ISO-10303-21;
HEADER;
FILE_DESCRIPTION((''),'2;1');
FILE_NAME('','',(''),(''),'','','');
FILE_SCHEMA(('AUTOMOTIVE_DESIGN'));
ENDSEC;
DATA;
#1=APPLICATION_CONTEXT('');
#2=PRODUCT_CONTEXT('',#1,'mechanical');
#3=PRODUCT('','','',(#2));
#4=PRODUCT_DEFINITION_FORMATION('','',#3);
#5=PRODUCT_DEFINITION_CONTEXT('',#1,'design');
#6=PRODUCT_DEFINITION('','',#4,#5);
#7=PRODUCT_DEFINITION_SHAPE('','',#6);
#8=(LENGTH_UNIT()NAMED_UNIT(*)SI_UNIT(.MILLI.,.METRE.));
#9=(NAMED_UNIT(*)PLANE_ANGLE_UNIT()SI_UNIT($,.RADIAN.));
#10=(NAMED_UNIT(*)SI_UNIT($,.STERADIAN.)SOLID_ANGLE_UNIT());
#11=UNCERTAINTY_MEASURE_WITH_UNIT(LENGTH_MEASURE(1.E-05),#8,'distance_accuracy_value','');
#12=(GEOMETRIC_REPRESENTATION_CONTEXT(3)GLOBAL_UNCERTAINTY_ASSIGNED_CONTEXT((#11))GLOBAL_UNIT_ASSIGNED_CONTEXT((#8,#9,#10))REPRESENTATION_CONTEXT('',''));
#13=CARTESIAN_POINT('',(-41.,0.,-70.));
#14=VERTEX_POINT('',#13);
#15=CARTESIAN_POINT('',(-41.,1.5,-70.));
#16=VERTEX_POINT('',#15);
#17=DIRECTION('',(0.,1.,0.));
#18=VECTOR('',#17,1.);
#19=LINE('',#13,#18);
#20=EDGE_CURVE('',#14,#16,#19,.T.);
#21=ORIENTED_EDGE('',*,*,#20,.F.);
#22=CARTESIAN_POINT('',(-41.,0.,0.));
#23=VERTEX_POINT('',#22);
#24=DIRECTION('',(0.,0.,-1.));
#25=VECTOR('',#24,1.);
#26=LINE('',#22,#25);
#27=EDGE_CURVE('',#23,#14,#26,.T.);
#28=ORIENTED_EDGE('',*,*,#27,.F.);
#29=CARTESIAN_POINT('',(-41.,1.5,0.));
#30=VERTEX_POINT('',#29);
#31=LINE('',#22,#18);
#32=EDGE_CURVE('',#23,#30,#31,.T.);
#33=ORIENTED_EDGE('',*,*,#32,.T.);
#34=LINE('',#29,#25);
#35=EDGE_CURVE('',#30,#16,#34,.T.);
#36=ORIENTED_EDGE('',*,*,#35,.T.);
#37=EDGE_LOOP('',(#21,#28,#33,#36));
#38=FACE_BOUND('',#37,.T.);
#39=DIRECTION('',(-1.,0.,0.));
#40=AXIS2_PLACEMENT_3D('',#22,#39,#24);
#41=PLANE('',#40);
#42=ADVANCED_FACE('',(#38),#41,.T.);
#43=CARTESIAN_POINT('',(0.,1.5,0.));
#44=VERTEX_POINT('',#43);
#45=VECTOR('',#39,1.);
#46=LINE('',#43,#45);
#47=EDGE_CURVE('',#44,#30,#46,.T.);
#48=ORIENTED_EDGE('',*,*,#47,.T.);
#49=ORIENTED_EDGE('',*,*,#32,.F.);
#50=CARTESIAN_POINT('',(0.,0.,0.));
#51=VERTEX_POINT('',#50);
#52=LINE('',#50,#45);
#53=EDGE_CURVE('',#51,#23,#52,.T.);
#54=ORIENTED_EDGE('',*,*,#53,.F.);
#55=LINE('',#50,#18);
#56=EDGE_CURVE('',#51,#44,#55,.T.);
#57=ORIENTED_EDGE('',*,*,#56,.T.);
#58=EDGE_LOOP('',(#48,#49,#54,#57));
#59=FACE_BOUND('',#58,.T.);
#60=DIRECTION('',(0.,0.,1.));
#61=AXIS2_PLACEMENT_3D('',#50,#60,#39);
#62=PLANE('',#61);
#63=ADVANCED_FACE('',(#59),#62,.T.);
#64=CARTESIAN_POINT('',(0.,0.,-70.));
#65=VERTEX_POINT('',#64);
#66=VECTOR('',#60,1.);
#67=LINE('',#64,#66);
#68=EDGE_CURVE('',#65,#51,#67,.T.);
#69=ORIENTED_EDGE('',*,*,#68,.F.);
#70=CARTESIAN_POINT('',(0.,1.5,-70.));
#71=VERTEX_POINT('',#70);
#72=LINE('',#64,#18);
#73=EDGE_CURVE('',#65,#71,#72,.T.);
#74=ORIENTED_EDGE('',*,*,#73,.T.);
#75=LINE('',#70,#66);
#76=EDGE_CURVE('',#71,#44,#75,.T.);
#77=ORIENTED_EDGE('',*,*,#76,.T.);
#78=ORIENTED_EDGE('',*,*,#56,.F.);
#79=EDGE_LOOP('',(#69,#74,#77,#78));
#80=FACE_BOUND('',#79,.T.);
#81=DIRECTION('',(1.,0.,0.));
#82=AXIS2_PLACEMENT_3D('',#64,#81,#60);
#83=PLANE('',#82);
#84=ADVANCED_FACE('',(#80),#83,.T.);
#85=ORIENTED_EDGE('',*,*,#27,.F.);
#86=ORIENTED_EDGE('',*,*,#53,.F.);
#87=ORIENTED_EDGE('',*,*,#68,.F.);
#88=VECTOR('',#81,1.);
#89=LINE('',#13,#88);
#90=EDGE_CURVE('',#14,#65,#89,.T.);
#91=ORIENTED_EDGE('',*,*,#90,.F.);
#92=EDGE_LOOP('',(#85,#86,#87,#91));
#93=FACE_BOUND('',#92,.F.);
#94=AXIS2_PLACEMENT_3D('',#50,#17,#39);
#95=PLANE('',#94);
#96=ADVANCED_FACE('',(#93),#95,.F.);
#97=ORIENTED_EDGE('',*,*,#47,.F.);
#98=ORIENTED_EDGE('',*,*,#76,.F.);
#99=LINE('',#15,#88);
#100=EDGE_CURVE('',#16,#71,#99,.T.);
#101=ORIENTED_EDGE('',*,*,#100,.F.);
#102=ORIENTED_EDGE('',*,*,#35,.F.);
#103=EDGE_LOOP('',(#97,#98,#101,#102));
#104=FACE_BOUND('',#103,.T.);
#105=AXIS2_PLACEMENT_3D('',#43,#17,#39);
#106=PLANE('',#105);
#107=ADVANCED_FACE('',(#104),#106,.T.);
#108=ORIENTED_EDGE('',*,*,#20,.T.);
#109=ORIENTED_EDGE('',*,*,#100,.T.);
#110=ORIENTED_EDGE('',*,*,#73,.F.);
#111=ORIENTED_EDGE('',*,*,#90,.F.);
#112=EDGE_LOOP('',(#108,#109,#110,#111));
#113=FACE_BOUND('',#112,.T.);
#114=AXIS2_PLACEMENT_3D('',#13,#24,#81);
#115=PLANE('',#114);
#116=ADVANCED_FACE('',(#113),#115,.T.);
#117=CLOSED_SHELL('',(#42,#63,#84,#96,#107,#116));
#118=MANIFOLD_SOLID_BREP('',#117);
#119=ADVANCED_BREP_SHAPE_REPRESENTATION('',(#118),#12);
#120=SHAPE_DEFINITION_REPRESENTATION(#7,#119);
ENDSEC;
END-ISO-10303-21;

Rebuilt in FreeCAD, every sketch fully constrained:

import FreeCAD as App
import Part
import Sketcher
from FreeCAD import Vector
Q = App.Units.Quantity

doc = App.newDocument("Part")
body = doc.addObject("PartDesign::Body", "Body")

sketch1 = body.newObject("Sketcher::SketchObject", "Sketch")
sketch1.AttachmentSupport = (doc.getObject("XZ_Plane"), [""])
sketch1.MapMode = "FlatFace"
sketch1.addGeometry([
    Part.LineSegment(Vector(0, -70, 0), Vector(-41, -70, 0)),
    Part.LineSegment(Vector(-41, -70, 0), Vector(-41, 0, 0)),
    Part.LineSegment(Vector(-41, 0, 0), Vector(0, 0, 0)),
    Part.LineSegment(Vector(0, 0, 0), Vector(0, -70, 0)),
], False)
sketch1.addConstraint([
    Sketcher.Constraint("Coincident", 0, 2, 1, 1),
    Sketcher.Constraint("Coincident", 1, 2, 2, 1),
    Sketcher.Constraint("Coincident", 2, 2, 3, 1),
    Sketcher.Constraint("Coincident", 3, 2, 0, 1),
    Sketcher.Constraint("Horizontal", 0),
    Sketcher.Constraint("Vertical", 1),
    Sketcher.Constraint("Horizontal", 2),
    Sketcher.Constraint("Vertical", 3),
    Sketcher.Constraint("Coincident", 2, 2, -1, 1),
    Sketcher.Constraint("DistanceX", 0, 2, 0, 1, Q("41 mm")),
    Sketcher.Constraint("DistanceY", 1, 1, 1, 2, Q("70 mm")),
])
pad1 = body.newObject("PartDesign::Pad", "Pad")
pad1.Profile = sketch1
pad1.Length = 1.5
pad1.Reversed = True

doc.recompute()
